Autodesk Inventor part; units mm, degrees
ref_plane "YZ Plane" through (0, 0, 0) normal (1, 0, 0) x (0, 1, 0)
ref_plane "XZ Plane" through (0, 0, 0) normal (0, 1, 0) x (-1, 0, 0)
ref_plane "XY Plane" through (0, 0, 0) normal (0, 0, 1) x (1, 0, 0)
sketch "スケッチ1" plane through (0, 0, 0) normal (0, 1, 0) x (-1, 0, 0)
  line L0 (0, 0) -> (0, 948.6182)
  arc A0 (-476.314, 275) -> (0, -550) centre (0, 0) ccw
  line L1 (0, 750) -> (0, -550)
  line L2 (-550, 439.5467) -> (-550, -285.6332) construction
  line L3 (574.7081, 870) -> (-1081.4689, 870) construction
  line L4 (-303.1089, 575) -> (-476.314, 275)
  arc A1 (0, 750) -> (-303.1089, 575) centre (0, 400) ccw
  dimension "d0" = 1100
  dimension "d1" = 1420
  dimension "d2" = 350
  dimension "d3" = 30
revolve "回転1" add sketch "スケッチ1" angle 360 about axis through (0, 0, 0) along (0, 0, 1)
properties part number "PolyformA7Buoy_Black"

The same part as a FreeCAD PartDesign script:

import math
import FreeCAD as App
import Part
import Sketcher

V = App.Vector
Q = App.Units.Quantity

doc = App.newDocument("Part")
body = doc.addObject("PartDesign::Body", "Body")

# Sketch on XZ plane
sketch1 = body.newObject("Sketcher::SketchObject", "Sketch")
sketch1.AttachmentSupport = (doc.getObject("XZ_Plane"), [""])
sketch1.MapMode = "FlatFace"
sketch1.addGeometry([
    Part.LineSegment(V(0, -550, 0), V(0, 750, 0)),
    Part.ArcOfCircle(Part.Circle(V(0, 400, 0), V(0, 0, 1), 350), math.radians(29.999999), math.radians(90)),
    Part.LineSegment(V(303.1089, 575, 0), V(476.314, 275, 0)),
    Part.ArcOfCircle(Part.Circle(V(0, 0, 0), V(0, 0, 1), 550.000024), math.radians(-90), math.radians(29.999999)),
], False)
sketch1.addConstraint([
    Sketcher.Constraint("Coincident", 0, 2, 1, 2),
    Sketcher.Constraint("Tangent", 1, 1, 2, 1),
    Sketcher.Constraint("Tangent", 2, 2, 3, 2),
    Sketcher.Constraint("Coincident", 3, 1, 0, 1),
    Sketcher.Constraint("Vertical", 0),
    Sketcher.Constraint("Coincident", 3, 3, -1, 1),
    Sketcher.Constraint("PointOnObject", 1, 3, -2),
    Sketcher.Constraint("PointOnObject", 0, 2, -2),
    Sketcher.Constraint("Radius", 1, Q("350 mm")),
    Sketcher.Constraint("Radius", 3, Q("550 mm")),
    Sketcher.Constraint("DistanceY", 0, 1, 0, 2, Q("1300 mm")),
])
revolution = body.newObject("PartDesign::Revolution", "Revolution")
revolution.Profile = sketch1
revolution.ReferenceAxis = (sketch1, ["V_Axis"])
revolution.Angle = 360

doc.recompute()
